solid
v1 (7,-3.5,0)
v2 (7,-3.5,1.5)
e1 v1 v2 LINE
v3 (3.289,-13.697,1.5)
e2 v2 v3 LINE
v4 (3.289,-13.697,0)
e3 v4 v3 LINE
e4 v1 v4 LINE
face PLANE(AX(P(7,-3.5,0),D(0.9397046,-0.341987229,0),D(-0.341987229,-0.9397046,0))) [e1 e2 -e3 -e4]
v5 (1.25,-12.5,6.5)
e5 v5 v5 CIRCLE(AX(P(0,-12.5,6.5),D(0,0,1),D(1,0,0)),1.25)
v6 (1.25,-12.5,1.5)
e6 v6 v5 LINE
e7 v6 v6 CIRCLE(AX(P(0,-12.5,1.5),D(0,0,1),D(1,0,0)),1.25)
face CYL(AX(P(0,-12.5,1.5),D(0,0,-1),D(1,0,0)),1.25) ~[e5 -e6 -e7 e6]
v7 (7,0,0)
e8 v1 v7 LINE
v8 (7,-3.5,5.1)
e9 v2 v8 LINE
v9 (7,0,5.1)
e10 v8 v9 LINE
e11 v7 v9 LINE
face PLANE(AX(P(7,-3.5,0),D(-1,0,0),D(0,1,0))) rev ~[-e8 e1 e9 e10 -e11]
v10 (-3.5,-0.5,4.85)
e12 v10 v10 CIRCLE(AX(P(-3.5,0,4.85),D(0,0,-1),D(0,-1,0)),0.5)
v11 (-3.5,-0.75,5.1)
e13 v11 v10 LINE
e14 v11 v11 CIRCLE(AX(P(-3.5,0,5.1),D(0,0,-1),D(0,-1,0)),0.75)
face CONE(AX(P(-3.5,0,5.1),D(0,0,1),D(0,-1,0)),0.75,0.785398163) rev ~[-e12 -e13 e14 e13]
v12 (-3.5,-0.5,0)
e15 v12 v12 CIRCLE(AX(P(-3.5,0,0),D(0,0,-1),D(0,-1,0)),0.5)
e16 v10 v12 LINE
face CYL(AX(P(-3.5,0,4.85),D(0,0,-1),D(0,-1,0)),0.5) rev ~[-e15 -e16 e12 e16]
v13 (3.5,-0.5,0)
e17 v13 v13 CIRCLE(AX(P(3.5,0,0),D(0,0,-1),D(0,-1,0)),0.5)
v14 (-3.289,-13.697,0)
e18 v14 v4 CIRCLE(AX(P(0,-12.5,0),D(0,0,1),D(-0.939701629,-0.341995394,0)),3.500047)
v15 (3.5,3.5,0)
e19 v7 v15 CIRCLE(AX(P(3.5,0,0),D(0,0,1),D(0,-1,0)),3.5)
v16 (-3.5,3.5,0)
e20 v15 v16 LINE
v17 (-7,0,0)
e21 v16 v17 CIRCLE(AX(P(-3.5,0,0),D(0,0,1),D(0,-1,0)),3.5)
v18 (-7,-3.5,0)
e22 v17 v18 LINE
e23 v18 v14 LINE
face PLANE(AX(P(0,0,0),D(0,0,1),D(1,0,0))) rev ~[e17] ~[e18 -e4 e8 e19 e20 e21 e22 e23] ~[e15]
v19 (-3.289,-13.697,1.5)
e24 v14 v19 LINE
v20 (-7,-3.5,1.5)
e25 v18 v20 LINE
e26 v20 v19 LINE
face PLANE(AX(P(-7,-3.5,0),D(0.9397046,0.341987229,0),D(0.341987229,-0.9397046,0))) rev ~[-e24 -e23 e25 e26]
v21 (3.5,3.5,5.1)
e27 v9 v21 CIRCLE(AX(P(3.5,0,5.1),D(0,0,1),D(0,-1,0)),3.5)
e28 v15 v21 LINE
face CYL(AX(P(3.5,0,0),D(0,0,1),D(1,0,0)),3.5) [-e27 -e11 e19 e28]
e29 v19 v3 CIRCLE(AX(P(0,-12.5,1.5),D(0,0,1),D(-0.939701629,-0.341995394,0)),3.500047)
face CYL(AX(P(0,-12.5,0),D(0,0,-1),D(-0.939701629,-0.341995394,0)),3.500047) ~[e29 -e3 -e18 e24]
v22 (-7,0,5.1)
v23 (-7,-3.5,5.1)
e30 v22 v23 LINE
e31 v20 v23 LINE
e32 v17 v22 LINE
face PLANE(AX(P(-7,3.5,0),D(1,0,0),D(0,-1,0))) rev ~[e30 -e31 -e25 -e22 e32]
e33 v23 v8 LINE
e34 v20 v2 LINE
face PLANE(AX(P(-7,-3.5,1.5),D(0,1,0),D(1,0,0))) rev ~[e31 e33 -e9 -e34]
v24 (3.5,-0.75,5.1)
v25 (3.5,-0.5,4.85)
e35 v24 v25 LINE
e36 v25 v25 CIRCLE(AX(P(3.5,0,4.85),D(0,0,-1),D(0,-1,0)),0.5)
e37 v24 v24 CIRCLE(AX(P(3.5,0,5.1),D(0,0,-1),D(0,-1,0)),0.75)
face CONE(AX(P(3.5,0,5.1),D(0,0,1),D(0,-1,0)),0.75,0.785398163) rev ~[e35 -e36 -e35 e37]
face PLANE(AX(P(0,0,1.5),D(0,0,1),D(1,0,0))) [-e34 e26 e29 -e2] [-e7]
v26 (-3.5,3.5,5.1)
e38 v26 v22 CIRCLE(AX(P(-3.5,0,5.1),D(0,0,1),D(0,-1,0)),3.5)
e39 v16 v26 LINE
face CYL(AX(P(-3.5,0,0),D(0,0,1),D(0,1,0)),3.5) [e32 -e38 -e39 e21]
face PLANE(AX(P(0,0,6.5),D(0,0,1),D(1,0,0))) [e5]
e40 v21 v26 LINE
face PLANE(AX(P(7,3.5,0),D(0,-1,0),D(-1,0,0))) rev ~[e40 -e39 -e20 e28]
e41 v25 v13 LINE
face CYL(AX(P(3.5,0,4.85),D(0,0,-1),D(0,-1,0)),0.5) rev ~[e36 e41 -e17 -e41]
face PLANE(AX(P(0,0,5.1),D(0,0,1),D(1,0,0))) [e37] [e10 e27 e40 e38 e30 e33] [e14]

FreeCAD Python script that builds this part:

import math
import FreeCAD as App
import Part
import Sketcher
Q = App.Units.Quantity


def edges_at(feature, points):
    """Names of the edges that pass closest to the given points."""
    edges = feature.Shape.Edges
    near = lambda p: min(range(len(edges)), key=lambda i: edges[i].distToShape(Part.Vertex(*p))[0])
    return sorted({f"Edge{near(p) + 1}" for p in points})

doc = App.newDocument("Part")
body = doc.addObject("PartDesign::Body", "Body")

sketch1 = body.newObject("Sketcher::SketchObject", "Sketch")
sketch1.AttachmentSupport = (doc.getObject("XY_Plane"), [""])
sketch1.MapMode = "FlatFace"
sketch1.addGeometry(Part.LineSegment(App.Vector(3.3, -13.7, 0), App.Vector(7, -3.5, 0)), False)
sketch1.addGeometry(Part.LineSegment(App.Vector(7, -3.5, 0), App.Vector(7, 3.5, 0)), False)
sketch1.addGeometry(Part.LineSegment(App.Vector(7, 3.5, 0), App.Vector(-7, 3.5, 0)), False)
sketch1.addGeometry(Part.LineSegment(App.Vector(-7, 3.5, 0), App.Vector(-7, -3.5, 0)), False)
sketch1.addGeometry(Part.LineSegment(App.Vector(-7, -3.5, 0), App.Vector(-3.3, -13.7, 0)), False)
sketch1.addGeometry(Part.ArcOfCircle(Part.Circle(App.Vector(0, -12.5, 0), App.Vector(0, 0, 1), 3.5), math.radians(-160), math.radians(-20)), False)
sketch1.addConstraint(Sketcher.Constraint("Coincident", 0, 2, 1, 1))
sketch1.addConstraint(Sketcher.Constraint("Coincident", 1, 2, 2, 1))
sketch1.addConstraint(Sketcher.Constraint("Coincident", 2, 2, 3, 1))
sketch1.addConstraint(Sketcher.Constraint("Coincident", 3, 2, 4, 1))
sketch1.addConstraint(Sketcher.Constraint("Tangent", 4, 2, 5, 1))
sketch1.addConstraint(Sketcher.Constraint("Tangent", 5, 2, 0, 1))
sketch1.addConstraint(Sketcher.Constraint("Vertical", 1))
sketch1.addConstraint(Sketcher.Constraint("Horizontal", 2))
sketch1.addConstraint(Sketcher.Constraint("Vertical", 3))
sketch1.addConstraint(Sketcher.Constraint("Symmetric", 0, 2, 2, 2, -1, 1))
sketch1.addConstraint(Sketcher.Constraint("Symmetric", 4, 2, 5, 2, -2))
sketch1.addConstraint(Sketcher.Constraint("Radius", 5, Q("3.5 mm")))
sketch1.addConstraint(Sketcher.Constraint("DistanceX", 2, 2, 2, 1, Q("14 mm")))
sketch1.addConstraint(Sketcher.Constraint("DistanceY", 1, 1, 1, 2, Q("7 mm")))
sketch1.addConstraint(Sketcher.Constraint("DistanceY", 5, 3, 0, 2, Q("9 mm")))
pad1 = body.newObject("PartDesign::Pad", "Pad")
pad1.Profile = sketch1
pad1.Length = 1.5

sketch2 = body.newObject("Sketcher::SketchObject", "Sketch001")
sketch2.AttachmentSupport = (doc.getObject("XY_Plane"), [""])
sketch2.MapMode = "FlatFace"
sketch2.AttachmentOffset = App.Placement(App.Vector(0, 0, 1.5), App.Rotation())
sketch2.addGeometry(Part.LineSegment(App.Vector(7, -4, 0), App.Vector(7, 4, 0)), False)
sketch2.addGeometry(Part.LineSegment(App.Vector(7, 4, 0), App.Vector(-7, 4, 0)), False)
sketch2.addGeometry(Part.LineSegment(App.Vector(-7, 4, 0), App.Vector(-7, -4, 0)), False)
sketch2.addGeometry(Part.LineSegment(App.Vector(-7, -4, 0), App.Vector(7, -4, 0)), False)
sketch2.addConstraint(Sketcher.Constraint("Coincident", 0, 2, 1, 1))
sketch2.addConstraint(Sketcher.Constraint("Coincident", 1, 2, 2, 1))
sketch2.addConstraint(Sketcher.Constraint("Coincident", 2, 2, 3, 1))
sketch2.addConstraint(Sketcher.Constraint("Coincident", 3, 2, 0, 1))
sketch2.addConstraint(Sketcher.Constraint("Vertical", 0))
sketch2.addConstraint(Sketcher.Constraint("Horizontal", 1))
sketch2.addConstraint(Sketcher.Constraint("Vertical", 2))
sketch2.addConstraint(Sketcher.Constraint("Horizontal", 3))
sketch2.addConstraint(Sketcher.Constraint("Symmetric", 0, 2, 2, 2, -1, 1))
sketch2.addConstraint(Sketcher.Constraint("DistanceX", 1, 2, 1, 1, Q("14 mm")))
sketch2.addConstraint(Sketcher.Constraint("DistanceY", 0, 1, 0, 2, Q("7 mm")))
pad2 = body.newObject("PartDesign::Pad", "Pad001")
pad2.Profile = sketch2
pad2.Length = 3.6

sketch3 = body.newObject("Sketcher::SketchObject", "Sketch002")
sketch3.AttachmentSupport = (doc.getObject("XY_Plane"), [""])
sketch3.MapMode = "FlatFace"
sketch3.AttachmentOffset = App.Placement(App.Vector(0, 0, 1.5), App.Rotation())
sketch3.addGeometry(Part.Circle(App.Vector(0, -12.5, 0), App.Vector(0, 0, 1), 1.2), False)
sketch3.addConstraint(Sketcher.Constraint("PointOnObject", 0, 3, -2))
sketch3.addConstraint(Sketcher.Constraint("Diameter", 0, Q("2.5 mm")))
sketch3.addConstraint(Sketcher.Constraint("DistanceY", 0, 3, -1, 1, Q("12.5 mm")))
pad3 = body.newObject("PartDesign::Pad", "Pad002")
pad3.Profile = sketch3
pad3.Length = 5
doc.recompute()

fillet = body.newObject("PartDesign::Fillet", "Fillet")
fillet.Base = (pad3, edges_at(pad3, [(7, 3.5, 2.55), (-7, 3.5, 2.55)]))
fillet.Radius = 3.5

sketch4 = body.newObject("Sketcher::SketchObject", "Sketch003")
sketch4.AttachmentSupport = (doc.getObject("XY_Plane"), [""])
sketch4.MapMode = "FlatFace"
sketch4.AttachmentOffset = App.Placement(App.Vector(0, 0, 5.1), App.Rotation())
sketch4.addGeometry(Part.Circle(App.Vector(-3.5, 0, 0), App.Vector(0, 0, 1), 0.5), False)
sketch4.addGeometry(Part.Circle(App.Vector(3.5, 0, 0), App.Vector(0, 0, 1), 0.5), False)
sketch4.addConstraint(Sketcher.Constraint("Equal", 0, 1))
sketch4.addConstraint(Sketcher.Constraint("Symmetric", 0, 3, 1, 3, -1, 1))
sketch4.addConstraint(Sketcher.Constraint("PointOnObject", 0, 3, -1))
sketch4.addConstraint(Sketcher.Constraint("Diameter", 0, Q("1 mm")))
sketch4.addConstraint(Sketcher.Constraint("DistanceX", 0, 3, 1, 3, Q("7 mm")))
doc.recompute()
hole = body.newObject("PartDesign::Hole", "Hole")
hole.Profile = sketch4
hole.ThreadType = "None"
hole.Diameter = 1
hole.DepthType = "ThroughAll"
hole.HoleCutType = "Countersink"
hole.HoleCutDiameter = 1.5
hole.HoleCutCountersinkAngle = 90

doc.recompute()
